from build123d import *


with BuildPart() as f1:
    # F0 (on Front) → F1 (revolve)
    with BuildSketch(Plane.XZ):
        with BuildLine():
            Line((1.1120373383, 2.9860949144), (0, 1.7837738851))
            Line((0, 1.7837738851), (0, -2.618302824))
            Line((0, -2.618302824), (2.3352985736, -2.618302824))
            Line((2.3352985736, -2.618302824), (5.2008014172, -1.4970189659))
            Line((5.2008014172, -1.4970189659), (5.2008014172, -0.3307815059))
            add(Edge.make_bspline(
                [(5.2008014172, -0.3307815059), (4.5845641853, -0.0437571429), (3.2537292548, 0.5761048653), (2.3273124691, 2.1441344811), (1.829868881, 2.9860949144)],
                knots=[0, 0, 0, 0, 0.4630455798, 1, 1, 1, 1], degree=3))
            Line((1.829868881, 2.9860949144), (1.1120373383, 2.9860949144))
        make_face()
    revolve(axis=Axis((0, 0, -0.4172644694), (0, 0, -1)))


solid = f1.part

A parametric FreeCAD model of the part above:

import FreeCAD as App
import Part
import Sketcher

doc = App.newDocument("Part")
body = doc.addObject("PartDesign::Body", "Body")

sketch1 = body.newObject("Sketcher::SketchObject", "Sketch")
sketch1.AttachmentSupport = (doc.getObject("XZ_Plane"), [""])
sketch1.MapMode = "FlatFace"
sketch1.addGeometry(Part.LineSegment(App.Vector(1.112037, 2.986095, 0), App.Vector(0, 1.783774, 0)), False)
sketch1.addGeometry(Part.LineSegment(App.Vector(0, 1.783774, 0), App.Vector(0, -2.618303, 0)), False)
sketch1.addGeometry(Part.LineSegment(App.Vector(0, -2.618303, 0), App.Vector(2.335299, -2.618303, 0)), False)
sketch1.addGeometry(Part.LineSegment(App.Vector(2.335299, -2.618303, 0), App.Vector(5.200801, -1.497019, 0)), False)
sketch1.addGeometry(Part.LineSegment(App.Vector(5.200801, -1.497019, 0), App.Vector(5.200801, -0.330782, 0)), False)
sketch1.addGeometry(Part.BSplineCurve([App.Vector(5.200801, -0.330782, 0), App.Vector(4.584564, -0.043757, 0), App.Vector(3.253729, 0.576105, 0), App.Vector(2.327312, 2.144134, 0), App.Vector(1.829869, 2.986095, 0)], [4, 1, 4], [0, 0.46304558, 1], False, 3, [1, 1, 1, 1, 1], False), False)
sketch1.addGeometry(Part.LineSegment(App.Vector(1.829869, 2.986095, 0), App.Vector(1.112037, 2.986095, 0)), False)
sketch1.addConstraint(Sketcher.Constraint("Block", 5))
sketch1.addConstraint(Sketcher.Constraint("Coincident", 0, 2, 1, 1))
sketch1.addConstraint(Sketcher.Constraint("Coincident", 1, 2, 2, 1))
sketch1.addConstraint(Sketcher.Constraint("Coincident", 2, 2, 3, 1))
sketch1.addConstraint(Sketcher.Constraint("Coincident", 3, 2, 4, 1))
sketch1.addConstraint(Sketcher.Constraint("Coincident", 4, 2, 5, 1))
sketch1.addConstraint(Sketcher.Constraint("Coincident", 5, 2, 6, 1))
sketch1.addConstraint(Sketcher.Constraint("Coincident", 6, 2, 0, 1))
sketch1.addConstraint(Sketcher.Constraint("Vertical", 1))
sketch1.addConstraint(Sketcher.Constraint("Horizontal", 2))
sketch1.addConstraint(Sketcher.Constraint("Vertical", 4))
sketch1.addConstraint(Sketcher.Constraint("Horizontal", 6))
sketch1.addConstraint(Sketcher.Constraint("PointOnObject", 0, 2, -2))
sketch1.addConstraint(Sketcher.Constraint("DistanceX", 2, 1, 2, 2, 2.335299))
sketch1.addConstraint(Sketcher.Constraint("DistanceX", 6, 2, 6, 1, 0.717832))
sketch1.addConstraint(Sketcher.Constraint("DistanceY", 1, 2, 1, 1, 4.402077))
sketch1.addConstraint(Sketcher.Constraint("DistanceY", 4, 1, 4, 2, 1.166237))
sketch1.addConstraint(Sketcher.Constraint("DistanceY", 2, 2, 4, 2, 2.287521))
revolution = body.newObject("PartDesign::Revolution", "Revolution")
revolution.Profile = sketch1
revolution.ReferenceAxis = (sketch1, ["V_Axis"])
revolution.Angle = 360

doc.recompute()
